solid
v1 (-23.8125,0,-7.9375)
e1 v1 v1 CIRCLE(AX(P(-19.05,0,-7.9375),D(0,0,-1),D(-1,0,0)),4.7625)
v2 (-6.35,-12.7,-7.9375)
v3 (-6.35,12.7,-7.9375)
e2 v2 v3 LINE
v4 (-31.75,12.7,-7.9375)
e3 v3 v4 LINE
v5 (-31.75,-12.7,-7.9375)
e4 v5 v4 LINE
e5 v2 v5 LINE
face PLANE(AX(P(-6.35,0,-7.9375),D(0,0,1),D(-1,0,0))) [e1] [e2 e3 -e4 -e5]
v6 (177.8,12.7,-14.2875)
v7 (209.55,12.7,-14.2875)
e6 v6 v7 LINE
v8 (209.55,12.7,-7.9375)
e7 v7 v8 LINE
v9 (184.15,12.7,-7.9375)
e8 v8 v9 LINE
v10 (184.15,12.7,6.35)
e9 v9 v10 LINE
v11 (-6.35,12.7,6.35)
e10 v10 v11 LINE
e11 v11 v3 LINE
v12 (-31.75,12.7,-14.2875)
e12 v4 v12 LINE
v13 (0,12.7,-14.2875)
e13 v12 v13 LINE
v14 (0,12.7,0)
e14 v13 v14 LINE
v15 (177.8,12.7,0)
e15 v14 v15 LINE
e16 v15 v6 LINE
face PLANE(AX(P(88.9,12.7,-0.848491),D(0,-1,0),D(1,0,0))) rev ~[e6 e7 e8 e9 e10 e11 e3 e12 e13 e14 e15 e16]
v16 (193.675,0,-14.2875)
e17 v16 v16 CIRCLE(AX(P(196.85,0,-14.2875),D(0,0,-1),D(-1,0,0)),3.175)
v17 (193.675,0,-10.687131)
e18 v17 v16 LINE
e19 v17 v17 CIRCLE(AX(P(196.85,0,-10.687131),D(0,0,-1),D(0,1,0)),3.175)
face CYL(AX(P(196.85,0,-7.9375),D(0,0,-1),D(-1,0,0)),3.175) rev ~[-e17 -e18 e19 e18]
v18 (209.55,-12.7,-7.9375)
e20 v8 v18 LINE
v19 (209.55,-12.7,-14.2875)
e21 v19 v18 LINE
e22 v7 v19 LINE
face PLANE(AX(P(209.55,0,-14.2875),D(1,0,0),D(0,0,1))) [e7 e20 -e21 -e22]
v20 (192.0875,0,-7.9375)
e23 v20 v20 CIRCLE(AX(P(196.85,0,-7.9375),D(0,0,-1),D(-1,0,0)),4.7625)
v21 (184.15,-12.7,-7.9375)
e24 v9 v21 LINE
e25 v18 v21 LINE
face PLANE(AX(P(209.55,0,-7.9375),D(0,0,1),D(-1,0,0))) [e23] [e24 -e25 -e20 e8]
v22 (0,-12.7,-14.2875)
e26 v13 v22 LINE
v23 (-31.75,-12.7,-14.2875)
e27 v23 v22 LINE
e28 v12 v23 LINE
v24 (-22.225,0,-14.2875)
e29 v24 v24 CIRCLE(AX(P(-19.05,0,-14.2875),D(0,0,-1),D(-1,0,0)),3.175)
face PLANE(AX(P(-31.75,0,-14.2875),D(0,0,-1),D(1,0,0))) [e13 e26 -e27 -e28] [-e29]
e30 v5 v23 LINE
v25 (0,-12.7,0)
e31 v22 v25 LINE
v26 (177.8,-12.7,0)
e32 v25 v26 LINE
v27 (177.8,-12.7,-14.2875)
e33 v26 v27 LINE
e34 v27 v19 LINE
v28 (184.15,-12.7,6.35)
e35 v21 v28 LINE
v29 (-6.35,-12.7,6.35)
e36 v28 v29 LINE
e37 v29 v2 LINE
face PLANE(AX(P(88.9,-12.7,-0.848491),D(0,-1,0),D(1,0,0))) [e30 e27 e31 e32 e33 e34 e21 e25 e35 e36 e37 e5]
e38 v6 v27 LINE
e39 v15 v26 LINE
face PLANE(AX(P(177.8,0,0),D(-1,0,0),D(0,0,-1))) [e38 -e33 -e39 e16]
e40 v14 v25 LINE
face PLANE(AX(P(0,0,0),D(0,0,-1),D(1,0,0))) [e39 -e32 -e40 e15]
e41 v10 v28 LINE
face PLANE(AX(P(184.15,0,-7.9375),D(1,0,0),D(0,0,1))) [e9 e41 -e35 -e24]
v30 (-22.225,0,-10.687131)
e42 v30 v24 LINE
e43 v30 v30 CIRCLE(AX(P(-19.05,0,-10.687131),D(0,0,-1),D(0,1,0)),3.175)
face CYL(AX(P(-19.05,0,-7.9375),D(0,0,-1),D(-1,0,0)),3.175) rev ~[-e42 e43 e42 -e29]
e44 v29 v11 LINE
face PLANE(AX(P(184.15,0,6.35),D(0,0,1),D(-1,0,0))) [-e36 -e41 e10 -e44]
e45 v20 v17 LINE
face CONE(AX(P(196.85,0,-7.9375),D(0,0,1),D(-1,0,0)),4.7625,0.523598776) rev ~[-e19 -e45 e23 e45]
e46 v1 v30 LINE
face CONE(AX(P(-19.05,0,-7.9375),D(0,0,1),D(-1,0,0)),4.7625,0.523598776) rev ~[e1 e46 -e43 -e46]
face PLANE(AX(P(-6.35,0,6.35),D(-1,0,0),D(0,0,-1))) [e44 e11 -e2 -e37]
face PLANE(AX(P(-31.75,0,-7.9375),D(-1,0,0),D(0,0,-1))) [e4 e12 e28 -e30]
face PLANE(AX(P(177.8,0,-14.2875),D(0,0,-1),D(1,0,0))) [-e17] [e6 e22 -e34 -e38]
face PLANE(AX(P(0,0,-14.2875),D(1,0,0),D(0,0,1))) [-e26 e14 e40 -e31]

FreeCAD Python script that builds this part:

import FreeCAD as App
import Part
import Sketcher
Q = App.Units.Quantity


def add_polygon(sketch, points):
    """Adds a closed chain of lines whose ends are joined by coincident constraints."""
    first, n = sketch.GeometryCount, len(points)
    for a, b in zip(points, points[1:] + points[:1]):
        sketch.addGeometry(Part.LineSegment(App.Vector(*a, 0), App.Vector(*b, 0)), False)
    for i in range(n):
        sketch.addConstraint(Sketcher.Constraint("Coincident", first + i, 2, first + (i + 1) % n, 1))

doc = App.newDocument("Part")
body = doc.addObject("PartDesign::Body", "Body")

sketch1 = body.newObject("Sketcher::SketchObject", "Sketch")
sketch1.AttachmentSupport = (doc.getObject("XZ_Plane"), [""])
sketch1.MapMode = "FlatFace"
add_polygon(sketch1, [(-31.75, -7.9375), (-31.75, -14.2875), (0, -14.2875), (0, 0), (177.8, 0), (177.8, -14.2875), (209.55, -14.2875), (209.55, -7.9375), (184.15, -7.9375), (184.15, 6.35), (-6.35, 6.35), (-6.35, -7.9375)])
sketch1.addConstraint([
    Sketcher.Constraint("Vertical", 0),
    Sketcher.Constraint("Horizontal", 1),
    Sketcher.Constraint("Vertical", 2),
    Sketcher.Constraint("Horizontal", 3),
    Sketcher.Constraint("Vertical", 4),
    Sketcher.Constraint("Horizontal", 5),
    Sketcher.Constraint("Vertical", 6),
    Sketcher.Constraint("Horizontal", 7),
    Sketcher.Constraint("Vertical", 8),
    Sketcher.Constraint("Horizontal", 9),
    Sketcher.Constraint("Vertical", 10),
    Sketcher.Constraint("Horizontal", 11),
    Sketcher.Constraint("Coincident", 2, 2, -1, 1),
    Sketcher.Constraint("Horizontal", 1, 2, 4, 2),
    Sketcher.Constraint("Horizontal", 7, 2, 10, 2),
    Sketcher.Constraint("Equal", 1, 5),
    Sketcher.Constraint("Equal", 7, 11),
    Sketcher.Constraint("Equal", 4, 8),
    Sketcher.Constraint("DistanceX", 3, 1, 3, 2, Q("7 in")),
    Sketcher.Constraint("DistanceX", 7, 2, 7, 1, Q("1 in")),
    Sketcher.Constraint("DistanceX", 9, 2, 9, 1, Q("7.5 in")),
    Sketcher.Constraint("DistanceY", 0, 2, 0, 1, Q("0.25 in")),
    Sketcher.Constraint("DistanceY", 2, 1, 2, 2, Q("0.5625 in")),
])
pad1 = body.newObject("PartDesign::Pad", "Pad")
pad1.Profile = sketch1
pad1.Length = Q("1 in")
pad1.Midplane = True

sketch2 = body.newObject("Sketcher::SketchObject", "Sketch001")
sketch2.AttachmentSupport = (doc.getObject("XY_Plane"), [""])
sketch2.MapMode = "FlatFace"
sketch2.AttachmentOffset = App.Placement(App.Vector(0, 0, -0.3125 * 25.4), App.Rotation())
sketch2.addGeometry([
    Part.Circle(App.Vector(-19.05, 0, 0), App.Vector(0, 0, 1), 3.175),
    Part.Circle(App.Vector(196.85, 0, 0), App.Vector(0, 0, 1), 3.175),
], False)
sketch2.addConstraint([
    Sketcher.Constraint("Equal", 0, 1),
    Sketcher.Constraint("PointOnObject", 0, 3, -1),
    Sketcher.Constraint("PointOnObject", 1, 3, -1),
    Sketcher.Constraint("Diameter", 0, Q("0.25 in")),
    Sketcher.Constraint("DistanceX", 0, 3, 1, 3, Q("8.5 in")),
    Sketcher.Constraint("DistanceX", 0, 3, -1, 1, Q("0.75 in")),
])
doc.recompute()
hole = body.newObject("PartDesign::Hole", "Hole")
hole.Profile = sketch2
hole.ThreadType = "None"
hole.Diameter = Q("0.25 in")
hole.DepthType = "ThroughAll"
hole.HoleCutType = "Countersink"
hole.HoleCutDiameter = Q("0.375 in")
hole.HoleCutCountersinkAngle = 60

doc.recompute()
